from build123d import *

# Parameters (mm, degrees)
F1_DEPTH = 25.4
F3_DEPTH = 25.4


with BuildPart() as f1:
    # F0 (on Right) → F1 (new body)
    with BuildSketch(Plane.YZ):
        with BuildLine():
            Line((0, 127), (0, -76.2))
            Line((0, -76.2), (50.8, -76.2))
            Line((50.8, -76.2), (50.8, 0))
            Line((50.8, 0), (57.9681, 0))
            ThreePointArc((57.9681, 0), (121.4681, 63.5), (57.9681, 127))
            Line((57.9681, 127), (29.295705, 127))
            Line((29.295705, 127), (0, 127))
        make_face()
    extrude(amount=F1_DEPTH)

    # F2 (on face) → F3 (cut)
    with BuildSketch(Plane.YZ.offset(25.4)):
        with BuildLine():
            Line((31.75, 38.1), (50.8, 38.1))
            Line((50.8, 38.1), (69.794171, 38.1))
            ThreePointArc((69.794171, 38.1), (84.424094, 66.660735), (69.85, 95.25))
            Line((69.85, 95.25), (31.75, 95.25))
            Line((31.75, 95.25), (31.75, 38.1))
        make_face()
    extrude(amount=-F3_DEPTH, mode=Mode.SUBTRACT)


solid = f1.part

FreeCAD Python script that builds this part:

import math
import FreeCAD as App
import Part
import Sketcher
from FreeCAD import Vector
Q = App.Units.Quantity

doc = App.newDocument("Part")
body = doc.addObject("PartDesign::Body", "Body")

sketch1 = body.newObject("Sketcher::SketchObject", "Sketch")
sketch1.AttachmentSupport = (doc.getObject("YZ_Plane"), [""])
sketch1.MapMode = "FlatFace"
sketch1.addGeometry([
    Part.LineSegment(Vector(0, 127, 0), Vector(0, -76.2, 0)),
    Part.LineSegment(Vector(0, -76.2, 0), Vector(50.8, -76.2, 0)),
    Part.LineSegment(Vector(50.8, -76.2, 0), Vector(50.8, 0, 0)),
    Part.LineSegment(Vector(50.8, 0, 0), Vector(57.9681, 0, 0)),
    Part.ArcOfCircle(Part.Circle(Vector(57.9681, 63.5, 0), Vector(0, 0, 1), 63.5), math.radians(-90), math.radians(90)),
    Part.LineSegment(Vector(57.9681, 127, 0), Vector(0, 127, 0)),
], False)
sketch1.addConstraint([
    Sketcher.Constraint("Coincident", 0, 2, 1, 1),
    Sketcher.Constraint("Coincident", 1, 2, 2, 1),
    Sketcher.Constraint("Coincident", 2, 2, 3, 1),
    Sketcher.Constraint("Tangent", 3, 2, 4, 1),
    Sketcher.Constraint("Tangent", 4, 2, 5, 1),
    Sketcher.Constraint("Coincident", 5, 2, 0, 1),
    Sketcher.Constraint("Vertical", 0),
    Sketcher.Constraint("Horizontal", 1),
    Sketcher.Constraint("Vertical", 2),
    Sketcher.Constraint("Horizontal", 3),
    Sketcher.Constraint("Horizontal", 5),
    Sketcher.Constraint("PointOnObject", 0, 2, -2),
    Sketcher.Constraint("PointOnObject", 2, 2, -1),
    Sketcher.Constraint("Radius", 4, Q("2.5 in")),
    Sketcher.Constraint("DistanceX", 1, 1, 1, 2, Q("2 in")),
    Sketcher.Constraint("DistanceY", 0, 2, 0, 1, Q("8 in")),
    Sketcher.Constraint("DistanceX", 3, 1, 3, 2, Q("7.1681 mm")),
])
pad1 = body.newObject("PartDesign::Pad", "Pad")
pad1.Profile = sketch1
pad1.Length = Q("1 in")

sketch2 = body.newObject("Sketcher::SketchObject", "Sketch001")
sketch2.AttachmentSupport = (doc.getObject("YZ_Plane"), [""])
sketch2.MapMode = "FlatFace"
sketch2.AttachmentOffset = App.Placement(Vector(0, 0, 1 * 25.4), App.Rotation())
sketch2.addGeometry([
    Part.LineSegment(Vector(31.75, 38.1, 0), Vector(69.794171, 38.1, 0)),
    Part.ArcOfCircle(Part.Circle(Vector(49.163559, 66.695181, 0), Vector(0, 0, 1), 35.260552), math.radians(-54.19062), math.radians(54.078677)),
    Part.LineSegment(Vector(69.85, 95.25, 0), Vector(31.75, 95.25, 0)),
    Part.LineSegment(Vector(31.75, 95.25, 0), Vector(31.75, 38.1, 0)),
], False)
sketch2.addConstraint([
    Sketcher.Constraint("Coincident", 0, 2, 1, 1),
    Sketcher.Constraint("Coincident", 1, 2, 2, 1),
    Sketcher.Constraint("Coincident", 2, 2, 3, 1),
    Sketcher.Constraint("Coincident", 3, 2, 0, 1),
    Sketcher.Constraint("Horizontal", 0),
    Sketcher.Constraint("Horizontal", 2),
    Sketcher.Constraint("Vertical", 3),
    Sketcher.Constraint("DistanceX", 2, 2, 2, 1, Q("1.5 in")),
    Sketcher.Constraint("DistanceY", 3, 2, 3, 1, Q("2.25 in")),
    Sketcher.Constraint("DistanceY", -1, 1, 0, 2, Q("1.5 in")),
    Sketcher.Constraint("DistanceX", -1, 1, 1, 2, Q("2.75 in")),
    Sketcher.Constraint("Radius", 1, Q("35.260552 mm")),
    Sketcher.Constraint("DistanceX", 0, 1, 0, 2, Q("38.044171 mm")),
])
pocket1 = body.newObject("PartDesign::Pocket", "Pocket")
pocket1.Profile = sketch2
pocket1.Length = Q("1 in")

doc.recompute()
